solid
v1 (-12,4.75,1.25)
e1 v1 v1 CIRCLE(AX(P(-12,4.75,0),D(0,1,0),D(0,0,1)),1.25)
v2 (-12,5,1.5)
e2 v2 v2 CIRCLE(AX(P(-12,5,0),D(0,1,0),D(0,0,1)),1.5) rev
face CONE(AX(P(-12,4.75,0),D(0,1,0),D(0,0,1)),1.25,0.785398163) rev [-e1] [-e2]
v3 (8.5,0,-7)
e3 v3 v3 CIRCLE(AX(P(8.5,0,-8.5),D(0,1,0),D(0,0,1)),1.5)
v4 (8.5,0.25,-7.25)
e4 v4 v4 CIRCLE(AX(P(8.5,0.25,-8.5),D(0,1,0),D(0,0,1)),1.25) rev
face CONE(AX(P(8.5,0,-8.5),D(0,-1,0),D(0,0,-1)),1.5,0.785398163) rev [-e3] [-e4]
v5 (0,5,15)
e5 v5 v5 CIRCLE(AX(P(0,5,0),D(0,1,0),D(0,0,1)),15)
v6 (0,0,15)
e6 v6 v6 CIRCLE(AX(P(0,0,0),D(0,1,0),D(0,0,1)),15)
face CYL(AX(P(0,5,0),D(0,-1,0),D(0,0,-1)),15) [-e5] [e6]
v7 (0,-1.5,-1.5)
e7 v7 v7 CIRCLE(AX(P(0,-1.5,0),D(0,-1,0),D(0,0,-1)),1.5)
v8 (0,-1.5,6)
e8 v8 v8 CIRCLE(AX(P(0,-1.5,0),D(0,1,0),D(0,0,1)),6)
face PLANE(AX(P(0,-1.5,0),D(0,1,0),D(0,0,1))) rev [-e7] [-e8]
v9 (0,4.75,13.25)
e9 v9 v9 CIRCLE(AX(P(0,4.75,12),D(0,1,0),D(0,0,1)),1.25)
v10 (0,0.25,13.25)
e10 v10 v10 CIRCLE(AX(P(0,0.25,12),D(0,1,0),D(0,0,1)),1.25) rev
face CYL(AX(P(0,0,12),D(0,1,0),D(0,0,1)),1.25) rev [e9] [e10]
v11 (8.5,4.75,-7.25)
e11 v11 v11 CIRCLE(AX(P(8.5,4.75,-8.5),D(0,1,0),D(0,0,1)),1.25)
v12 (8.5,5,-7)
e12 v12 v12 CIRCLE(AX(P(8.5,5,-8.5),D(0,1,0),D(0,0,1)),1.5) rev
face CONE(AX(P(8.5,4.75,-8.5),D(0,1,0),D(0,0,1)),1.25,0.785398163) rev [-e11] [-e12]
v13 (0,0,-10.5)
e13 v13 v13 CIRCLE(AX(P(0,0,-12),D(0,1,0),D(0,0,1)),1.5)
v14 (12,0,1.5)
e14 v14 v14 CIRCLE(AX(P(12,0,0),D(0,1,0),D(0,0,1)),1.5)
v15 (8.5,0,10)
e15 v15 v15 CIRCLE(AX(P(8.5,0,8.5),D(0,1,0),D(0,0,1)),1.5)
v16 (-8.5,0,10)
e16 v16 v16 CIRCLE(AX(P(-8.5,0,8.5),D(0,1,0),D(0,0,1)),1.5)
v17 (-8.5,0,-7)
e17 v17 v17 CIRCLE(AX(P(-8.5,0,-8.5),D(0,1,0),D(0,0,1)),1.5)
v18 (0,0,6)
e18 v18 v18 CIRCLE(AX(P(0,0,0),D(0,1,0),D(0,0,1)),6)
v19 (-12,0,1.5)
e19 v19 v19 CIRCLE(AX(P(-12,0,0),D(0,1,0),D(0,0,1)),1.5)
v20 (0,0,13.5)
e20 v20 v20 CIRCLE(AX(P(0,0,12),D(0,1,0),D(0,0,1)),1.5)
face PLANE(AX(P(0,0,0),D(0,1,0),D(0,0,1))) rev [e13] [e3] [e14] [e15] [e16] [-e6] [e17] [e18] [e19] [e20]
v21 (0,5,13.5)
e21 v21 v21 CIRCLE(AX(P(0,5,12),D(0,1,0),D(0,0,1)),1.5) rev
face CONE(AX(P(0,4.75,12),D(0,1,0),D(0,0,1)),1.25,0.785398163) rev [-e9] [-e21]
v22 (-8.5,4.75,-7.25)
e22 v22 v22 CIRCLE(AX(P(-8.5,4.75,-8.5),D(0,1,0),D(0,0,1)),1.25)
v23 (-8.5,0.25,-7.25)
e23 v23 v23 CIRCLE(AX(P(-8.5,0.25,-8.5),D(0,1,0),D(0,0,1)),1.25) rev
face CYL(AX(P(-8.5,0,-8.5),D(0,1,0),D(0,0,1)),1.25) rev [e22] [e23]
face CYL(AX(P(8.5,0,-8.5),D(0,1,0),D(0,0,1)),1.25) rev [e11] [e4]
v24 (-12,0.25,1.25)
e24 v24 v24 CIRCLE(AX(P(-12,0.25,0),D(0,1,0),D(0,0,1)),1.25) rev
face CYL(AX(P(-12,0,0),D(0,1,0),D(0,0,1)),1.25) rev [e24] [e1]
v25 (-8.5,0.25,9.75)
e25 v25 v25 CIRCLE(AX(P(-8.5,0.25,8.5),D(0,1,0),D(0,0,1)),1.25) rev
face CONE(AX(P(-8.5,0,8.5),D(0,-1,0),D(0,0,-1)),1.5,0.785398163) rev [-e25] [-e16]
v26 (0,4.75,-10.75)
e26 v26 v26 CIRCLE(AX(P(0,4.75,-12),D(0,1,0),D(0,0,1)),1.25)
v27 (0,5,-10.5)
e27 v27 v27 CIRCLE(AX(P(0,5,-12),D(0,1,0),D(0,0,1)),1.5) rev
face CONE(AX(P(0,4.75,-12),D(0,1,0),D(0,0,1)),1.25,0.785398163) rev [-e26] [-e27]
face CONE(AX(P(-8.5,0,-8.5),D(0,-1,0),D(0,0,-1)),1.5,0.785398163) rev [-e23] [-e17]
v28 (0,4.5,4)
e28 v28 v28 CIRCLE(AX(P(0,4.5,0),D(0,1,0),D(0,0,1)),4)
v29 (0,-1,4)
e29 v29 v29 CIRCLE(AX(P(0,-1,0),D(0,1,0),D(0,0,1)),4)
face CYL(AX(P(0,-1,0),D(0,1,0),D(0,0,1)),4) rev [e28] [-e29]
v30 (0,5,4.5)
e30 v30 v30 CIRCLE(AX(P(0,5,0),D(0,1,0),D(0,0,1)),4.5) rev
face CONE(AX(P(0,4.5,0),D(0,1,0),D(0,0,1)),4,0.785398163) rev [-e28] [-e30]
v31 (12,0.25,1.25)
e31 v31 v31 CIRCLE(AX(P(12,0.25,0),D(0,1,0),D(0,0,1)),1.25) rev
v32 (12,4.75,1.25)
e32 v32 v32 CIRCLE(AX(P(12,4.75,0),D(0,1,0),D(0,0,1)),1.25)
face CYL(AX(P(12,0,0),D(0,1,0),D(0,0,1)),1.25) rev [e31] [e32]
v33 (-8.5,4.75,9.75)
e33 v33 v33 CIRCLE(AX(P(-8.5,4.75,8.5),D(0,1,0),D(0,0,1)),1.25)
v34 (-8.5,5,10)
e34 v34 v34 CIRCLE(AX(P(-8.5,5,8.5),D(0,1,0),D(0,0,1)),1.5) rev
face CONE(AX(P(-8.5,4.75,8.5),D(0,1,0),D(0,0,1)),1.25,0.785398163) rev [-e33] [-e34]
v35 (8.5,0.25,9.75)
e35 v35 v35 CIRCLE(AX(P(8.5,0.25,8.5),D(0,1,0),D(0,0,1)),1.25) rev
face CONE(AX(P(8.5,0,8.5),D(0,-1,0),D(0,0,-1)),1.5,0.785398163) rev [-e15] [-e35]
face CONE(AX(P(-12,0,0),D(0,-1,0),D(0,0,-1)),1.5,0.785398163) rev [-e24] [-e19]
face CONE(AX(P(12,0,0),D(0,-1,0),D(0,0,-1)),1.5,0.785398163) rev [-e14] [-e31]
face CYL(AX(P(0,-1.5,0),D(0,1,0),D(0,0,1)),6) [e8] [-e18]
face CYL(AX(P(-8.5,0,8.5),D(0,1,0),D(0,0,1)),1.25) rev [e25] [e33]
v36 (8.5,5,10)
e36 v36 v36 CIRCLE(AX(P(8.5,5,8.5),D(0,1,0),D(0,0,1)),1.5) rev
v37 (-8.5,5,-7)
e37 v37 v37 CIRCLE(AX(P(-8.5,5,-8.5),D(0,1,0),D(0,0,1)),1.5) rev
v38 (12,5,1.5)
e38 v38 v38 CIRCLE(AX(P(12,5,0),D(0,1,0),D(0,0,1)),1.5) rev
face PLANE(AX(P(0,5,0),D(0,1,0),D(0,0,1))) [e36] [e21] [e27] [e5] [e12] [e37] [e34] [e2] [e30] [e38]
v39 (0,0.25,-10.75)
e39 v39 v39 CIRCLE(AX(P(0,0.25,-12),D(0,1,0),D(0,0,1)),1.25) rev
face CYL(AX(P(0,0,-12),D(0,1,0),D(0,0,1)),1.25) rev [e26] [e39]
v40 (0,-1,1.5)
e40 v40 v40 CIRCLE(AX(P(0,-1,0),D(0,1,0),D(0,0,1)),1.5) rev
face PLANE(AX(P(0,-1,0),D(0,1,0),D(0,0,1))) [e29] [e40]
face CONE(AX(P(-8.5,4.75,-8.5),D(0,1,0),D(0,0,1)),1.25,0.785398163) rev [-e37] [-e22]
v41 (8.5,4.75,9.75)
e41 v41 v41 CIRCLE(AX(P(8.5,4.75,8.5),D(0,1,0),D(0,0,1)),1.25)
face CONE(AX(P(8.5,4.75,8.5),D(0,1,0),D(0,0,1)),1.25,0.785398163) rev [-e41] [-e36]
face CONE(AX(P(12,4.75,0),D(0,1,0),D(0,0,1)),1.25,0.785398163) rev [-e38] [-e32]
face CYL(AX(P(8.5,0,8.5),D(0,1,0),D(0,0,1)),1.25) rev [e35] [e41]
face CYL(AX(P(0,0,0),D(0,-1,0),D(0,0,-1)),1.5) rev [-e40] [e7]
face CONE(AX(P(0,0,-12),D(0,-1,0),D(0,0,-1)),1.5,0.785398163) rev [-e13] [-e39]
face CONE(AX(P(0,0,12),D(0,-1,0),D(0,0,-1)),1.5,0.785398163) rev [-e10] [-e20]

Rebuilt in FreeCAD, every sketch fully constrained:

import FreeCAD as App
import Part
import Sketcher

V = App.Vector
Q = App.Units.Quantity


def edges_at(feature, points):
    """Names of the edges that pass closest to the given points."""
    edges = feature.Shape.Edges
    near = lambda p: min(range(len(edges)), key=lambda i: edges[i].distToShape(Part.Vertex(*p))[0])
    return sorted({f"Edge{near(p) + 1}" for p in points})

doc = App.newDocument("Part")
body = doc.addObject("PartDesign::Body", "Body")

# Sketch on XZ plane
sketch1 = body.newObject("Sketcher::SketchObject", "Sketch")
sketch1.AttachmentSupport = (doc.getObject("XZ_Plane"), [""])
sketch1.MapMode = "FlatFace"
sketch1.addGeometry(Part.Circle(V(0, 0, 0), V(0, 0, 1), 15), False)
sketch1.addConstraint([
    Sketcher.Constraint("Coincident", 0, 3, -1, 1),
    Sketcher.Constraint("Diameter", 0, Q("30 mm")),
])
pad1 = body.newObject("PartDesign::Pad", "Pad")
pad1.Profile = sketch1
pad1.Length = 5
pad1.Reversed = True

# Sketch on XZ plane
sketch2 = body.newObject("Sketcher::SketchObject", "Sketch001")
sketch2.AttachmentSupport = (doc.getObject("XZ_Plane"), [""])
sketch2.MapMode = "FlatFace"
sketch2.AttachmentOffset = App.Placement(V(0, 0, -5), App.Rotation())
sketch2.addGeometry([
    Part.Circle(V(0, -12, 0), V(0, 0, 1), 1.2),  # 0
    Part.Circle(V(-12, 0, 0), V(0, 0, 1), 1.2),  # 1
    Part.Circle(V(0, 12, 0), V(0, 0, 1), 1.2),  # 2
    Part.Circle(V(12, 0, 0), V(0, 0, 1), 1.2),  # 3
    Part.Circle(V(-8.5, -8.5, 0), V(0, 0, 1), 1.2),  # 4
    Part.Circle(V(-8.5, 8.5, 0), V(0, 0, 1), 1.2),  # 5
    Part.Circle(V(8.5, -8.5, 0), V(0, 0, 1), 1.2),  # 6
    Part.Circle(V(8.5, 8.5, 0), V(0, 0, 1), 1.2),  # 7
], False)
sketch2.addConstraint([
    Sketcher.Constraint("Equal", 0, 1),
    Sketcher.Constraint("Equal", 1, 2),
    Sketcher.Constraint("Equal", 2, 3),
    Sketcher.Constraint("Equal", 3, 4),
    Sketcher.Constraint("Equal", 4, 5),
    Sketcher.Constraint("Equal", 5, 6),
    Sketcher.Constraint("Equal", 6, 7),
    Sketcher.Constraint("Symmetric", 0, 3, 2, 3, -1, 1),
    Sketcher.Constraint("Symmetric", 1, 3, 3, 3, -1, 1),
    Sketcher.Constraint("Symmetric", 5, 3, 6, 3, -1, 1),
    Sketcher.Constraint("Symmetric", 4, 3, 7, 3, -1, 1),
    Sketcher.Constraint("Symmetric", 4, 3, 6, 3, -2),
    Sketcher.Constraint("PointOnObject", 0, 3, -2),
    Sketcher.Constraint("PointOnObject", 1, 3, -1),
    Sketcher.Constraint("Diameter", 0, Q("2.5 mm")),
    Sketcher.Constraint("DistanceY", 0, 3, -1, 1, Q("12 mm")),
    Sketcher.Constraint("DistanceX", 1, 3, -1, 1, Q("12 mm")),
    Sketcher.Constraint("DistanceY", 4, 3, 5, 3, Q("17 mm")),
    Sketcher.Constraint("DistanceX", 4, 3, 6, 3, Q("17 mm")),
])
pocket1 = body.newObject("PartDesign::Pocket", "Pocket")
pocket1.Profile = sketch2
pocket1.Type = "ThroughAll"
pocket1.Reversed = True

# Sketch on XZ plane
sketch3 = body.newObject("Sketcher::SketchObject", "Sketch002")
sketch3.AttachmentSupport = (doc.getObject("XZ_Plane"), [""])
sketch3.MapMode = "FlatFace"
sketch3.addGeometry(Part.Circle(V(0, 0, 0), V(0, 0, 1), 6), False)
sketch3.addConstraint([
    Sketcher.Constraint("Coincident", 0, 3, -1, 1),
    Sketcher.Constraint("Diameter", 0, Q("12 mm")),
])
pad2 = body.newObject("PartDesign::Pad", "Pad001")
pad2.Profile = sketch3
pad2.Length = 1.5

# Sketch on XZ plane
sketch4 = body.newObject("Sketcher::SketchObject", "Sketch003")
sketch4.AttachmentSupport = (doc.getObject("XZ_Plane"), [""])
sketch4.MapMode = "FlatFace"
sketch4.AttachmentOffset = App.Placement(V(0, 0, 1.5), App.Rotation())
sketch4.addGeometry(Part.Circle(V(0, 0, 0), V(0, 0, 1), 1.5), False)
sketch4.addConstraint([
    Sketcher.Constraint("Coincident", 0, 3, -1, 1),
    Sketcher.Constraint("Diameter", 0, Q("3 mm")),
])
pocket2 = body.newObject("PartDesign::Pocket", "Pocket001")
pocket2.Profile = sketch4
pocket2.Length = 1.5
doc.recompute()

chamfer = body.newObject("PartDesign::Chamfer", "Chamfer")
chamfer.Base = (pocket2, edges_at(pocket2, [
    (-1.25, 0, -12),
    (-1.25, 5, -12),
    (7.25, 0, 8.5),
    (7.25, 5, 8.5),
    (7.25, 0, -8.5),
    (7.25, 5, -8.5),
    (-9.75, 0, -8.5),
    (-9.75, 5, -8.5),
    (-13.25, 0, 0),
    (-13.25, 5, 0),
    (-1.25, 0, 12),
    (-1.25, 5, 12),
    (10.75, 0, 0),
    (10.75, 5, 0),
    (-9.75, 0, 8.5),
    (-9.75, 5, 8.5),
]))
chamfer.Size = 0.25

# Sketch on XZ plane
sketch5 = body.newObject("Sketcher::SketchObject", "Sketch004")
sketch5.AttachmentSupport = (doc.getObject("XZ_Plane"), [""])
sketch5.MapMode = "FlatFace"
sketch5.AttachmentOffset = App.Placement(V(0, 0, -5), App.Rotation())
sketch5.addGeometry(Part.Circle(V(0, 0, 0), V(0, 0, 1), 4), False)
sketch5.addConstraint([
    Sketcher.Constraint("Coincident", 0, 3, -1, 1),
    Sketcher.Constraint("Diameter", 0, Q("8 mm")),
])
pocket3 = body.newObject("PartDesign::Pocket", "Pocket002")
pocket3.Profile = sketch5
pocket3.Length = 6
pocket3.Reversed = True
doc.recompute()

chamfer2 = body.newObject("PartDesign::Chamfer", "Chamfer001")
chamfer2.Base = (pocket3, edges_at(pocket3, [(-4, 5, 0)]))
chamfer2.Size = 0.5

doc.recompute()
